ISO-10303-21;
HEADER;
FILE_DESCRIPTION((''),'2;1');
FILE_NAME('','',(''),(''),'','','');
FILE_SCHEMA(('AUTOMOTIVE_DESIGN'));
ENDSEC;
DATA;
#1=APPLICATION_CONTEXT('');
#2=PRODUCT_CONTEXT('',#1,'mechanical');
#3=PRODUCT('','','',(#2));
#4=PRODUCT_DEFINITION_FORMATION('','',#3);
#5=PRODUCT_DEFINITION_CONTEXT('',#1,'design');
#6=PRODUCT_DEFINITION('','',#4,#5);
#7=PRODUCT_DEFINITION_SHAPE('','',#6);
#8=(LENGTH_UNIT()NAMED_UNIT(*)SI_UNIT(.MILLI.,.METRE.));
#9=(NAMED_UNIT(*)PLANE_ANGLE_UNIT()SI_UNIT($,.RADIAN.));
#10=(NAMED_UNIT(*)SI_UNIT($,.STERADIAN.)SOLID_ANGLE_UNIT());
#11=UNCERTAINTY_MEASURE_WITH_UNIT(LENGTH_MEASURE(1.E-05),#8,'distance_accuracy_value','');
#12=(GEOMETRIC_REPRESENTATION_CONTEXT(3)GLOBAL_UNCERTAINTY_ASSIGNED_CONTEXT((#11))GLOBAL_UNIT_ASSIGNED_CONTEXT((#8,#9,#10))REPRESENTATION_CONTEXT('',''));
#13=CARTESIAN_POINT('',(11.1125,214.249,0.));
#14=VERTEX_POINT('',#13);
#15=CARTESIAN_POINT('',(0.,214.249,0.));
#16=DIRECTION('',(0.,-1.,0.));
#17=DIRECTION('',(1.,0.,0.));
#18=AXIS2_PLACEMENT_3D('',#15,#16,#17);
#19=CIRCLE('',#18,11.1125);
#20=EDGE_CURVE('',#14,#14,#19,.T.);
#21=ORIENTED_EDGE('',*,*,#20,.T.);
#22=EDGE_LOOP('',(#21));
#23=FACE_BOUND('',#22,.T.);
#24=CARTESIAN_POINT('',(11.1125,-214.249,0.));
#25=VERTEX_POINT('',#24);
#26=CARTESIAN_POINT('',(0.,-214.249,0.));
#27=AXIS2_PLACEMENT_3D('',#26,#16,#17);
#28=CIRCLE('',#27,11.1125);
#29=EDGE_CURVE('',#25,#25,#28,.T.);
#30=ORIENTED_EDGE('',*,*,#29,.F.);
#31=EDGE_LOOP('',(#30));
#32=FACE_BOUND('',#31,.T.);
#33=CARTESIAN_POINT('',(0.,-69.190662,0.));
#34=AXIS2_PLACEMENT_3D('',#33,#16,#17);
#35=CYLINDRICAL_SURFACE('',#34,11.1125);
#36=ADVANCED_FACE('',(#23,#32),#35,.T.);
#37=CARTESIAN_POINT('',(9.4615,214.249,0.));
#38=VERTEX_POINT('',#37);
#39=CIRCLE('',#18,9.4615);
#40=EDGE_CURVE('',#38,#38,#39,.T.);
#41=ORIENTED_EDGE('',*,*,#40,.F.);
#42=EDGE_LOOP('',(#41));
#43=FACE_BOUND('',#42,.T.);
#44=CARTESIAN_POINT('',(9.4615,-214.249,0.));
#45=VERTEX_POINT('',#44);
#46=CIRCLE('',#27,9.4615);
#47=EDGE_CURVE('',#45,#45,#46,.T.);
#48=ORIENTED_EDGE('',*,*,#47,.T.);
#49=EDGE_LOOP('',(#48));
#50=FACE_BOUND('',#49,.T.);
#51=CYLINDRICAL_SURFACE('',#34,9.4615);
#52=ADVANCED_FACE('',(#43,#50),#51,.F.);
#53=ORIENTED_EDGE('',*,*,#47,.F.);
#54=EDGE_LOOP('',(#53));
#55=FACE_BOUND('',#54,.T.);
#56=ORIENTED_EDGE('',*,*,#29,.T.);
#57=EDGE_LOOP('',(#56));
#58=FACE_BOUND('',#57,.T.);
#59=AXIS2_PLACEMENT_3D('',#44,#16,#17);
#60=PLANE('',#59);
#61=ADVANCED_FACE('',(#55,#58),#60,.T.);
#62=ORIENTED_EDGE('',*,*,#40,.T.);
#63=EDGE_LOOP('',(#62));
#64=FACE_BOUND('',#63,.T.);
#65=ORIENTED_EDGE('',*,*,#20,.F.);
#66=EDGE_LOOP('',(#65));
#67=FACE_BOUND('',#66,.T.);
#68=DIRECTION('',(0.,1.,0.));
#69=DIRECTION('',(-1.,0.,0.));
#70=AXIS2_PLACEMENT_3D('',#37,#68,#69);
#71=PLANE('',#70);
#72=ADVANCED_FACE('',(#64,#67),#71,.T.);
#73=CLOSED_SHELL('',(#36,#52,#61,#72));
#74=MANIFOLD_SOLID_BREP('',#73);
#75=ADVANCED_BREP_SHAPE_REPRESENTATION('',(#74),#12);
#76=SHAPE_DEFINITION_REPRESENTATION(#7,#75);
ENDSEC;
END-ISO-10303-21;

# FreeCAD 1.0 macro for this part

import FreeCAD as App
import Part
import Sketcher
from FreeCAD import Vector
Q = App.Units.Quantity


def add_polygon(sketch, points):
    """Adds a closed chain of lines whose ends are joined by coincident constraints."""
    first, n = sketch.GeometryCount, len(points)
    for a, b in zip(points, points[1:] + points[:1]):
        sketch.addGeometry(Part.LineSegment(App.Vector(*a, 0), App.Vector(*b, 0)), False)
    for i in range(n):
        sketch.addConstraint(Sketcher.Constraint("Coincident", first + i, 2, first + (i + 1) % n, 1))

doc = App.newDocument("Part")
body = doc.addObject("PartDesign::Body", "Body")

sketch1 = body.newObject("Sketcher::SketchObject", "Sketch")
sketch1.AttachmentSupport = (doc.getObject("XY_Plane"), [""])
sketch1.MapMode = "FlatFace"
add_polygon(sketch1, [(9.5, 214.2), (9.5, -214.2), (11.1, -214.2), (11.1, 214.2)])
sketch1.addConstraint(Sketcher.Constraint("Vertical", 0))
sketch1.addConstraint(Sketcher.Constraint("Horizontal", 1))
sketch1.addConstraint(Sketcher.Constraint("Vertical", 2))
sketch1.addConstraint(Sketcher.Constraint("Horizontal", 3))
sketch1.addConstraint(Sketcher.Constraint("DistanceY", 0, 2, 0, 1, Q("16.87 in")))
sketch1.addConstraint(Sketcher.Constraint("DistanceX", 1, 1, 1, 2, Q("0.065 in")))
sketch1.addConstraint(Sketcher.Constraint("DistanceY", 0, 2, -1, 1, Q("8.435 in")))
sketch1.addConstraint(Sketcher.Constraint("DistanceX", -1, 1, 1, 2, Q("0.4375 in")))
revolution = body.newObject("PartDesign::Revolution", "Revolution")
revolution.Profile = sketch1
revolution.ReferenceAxis = (sketch1, ["V_Axis"])
revolution.Angle = 360

doc.recompute()
